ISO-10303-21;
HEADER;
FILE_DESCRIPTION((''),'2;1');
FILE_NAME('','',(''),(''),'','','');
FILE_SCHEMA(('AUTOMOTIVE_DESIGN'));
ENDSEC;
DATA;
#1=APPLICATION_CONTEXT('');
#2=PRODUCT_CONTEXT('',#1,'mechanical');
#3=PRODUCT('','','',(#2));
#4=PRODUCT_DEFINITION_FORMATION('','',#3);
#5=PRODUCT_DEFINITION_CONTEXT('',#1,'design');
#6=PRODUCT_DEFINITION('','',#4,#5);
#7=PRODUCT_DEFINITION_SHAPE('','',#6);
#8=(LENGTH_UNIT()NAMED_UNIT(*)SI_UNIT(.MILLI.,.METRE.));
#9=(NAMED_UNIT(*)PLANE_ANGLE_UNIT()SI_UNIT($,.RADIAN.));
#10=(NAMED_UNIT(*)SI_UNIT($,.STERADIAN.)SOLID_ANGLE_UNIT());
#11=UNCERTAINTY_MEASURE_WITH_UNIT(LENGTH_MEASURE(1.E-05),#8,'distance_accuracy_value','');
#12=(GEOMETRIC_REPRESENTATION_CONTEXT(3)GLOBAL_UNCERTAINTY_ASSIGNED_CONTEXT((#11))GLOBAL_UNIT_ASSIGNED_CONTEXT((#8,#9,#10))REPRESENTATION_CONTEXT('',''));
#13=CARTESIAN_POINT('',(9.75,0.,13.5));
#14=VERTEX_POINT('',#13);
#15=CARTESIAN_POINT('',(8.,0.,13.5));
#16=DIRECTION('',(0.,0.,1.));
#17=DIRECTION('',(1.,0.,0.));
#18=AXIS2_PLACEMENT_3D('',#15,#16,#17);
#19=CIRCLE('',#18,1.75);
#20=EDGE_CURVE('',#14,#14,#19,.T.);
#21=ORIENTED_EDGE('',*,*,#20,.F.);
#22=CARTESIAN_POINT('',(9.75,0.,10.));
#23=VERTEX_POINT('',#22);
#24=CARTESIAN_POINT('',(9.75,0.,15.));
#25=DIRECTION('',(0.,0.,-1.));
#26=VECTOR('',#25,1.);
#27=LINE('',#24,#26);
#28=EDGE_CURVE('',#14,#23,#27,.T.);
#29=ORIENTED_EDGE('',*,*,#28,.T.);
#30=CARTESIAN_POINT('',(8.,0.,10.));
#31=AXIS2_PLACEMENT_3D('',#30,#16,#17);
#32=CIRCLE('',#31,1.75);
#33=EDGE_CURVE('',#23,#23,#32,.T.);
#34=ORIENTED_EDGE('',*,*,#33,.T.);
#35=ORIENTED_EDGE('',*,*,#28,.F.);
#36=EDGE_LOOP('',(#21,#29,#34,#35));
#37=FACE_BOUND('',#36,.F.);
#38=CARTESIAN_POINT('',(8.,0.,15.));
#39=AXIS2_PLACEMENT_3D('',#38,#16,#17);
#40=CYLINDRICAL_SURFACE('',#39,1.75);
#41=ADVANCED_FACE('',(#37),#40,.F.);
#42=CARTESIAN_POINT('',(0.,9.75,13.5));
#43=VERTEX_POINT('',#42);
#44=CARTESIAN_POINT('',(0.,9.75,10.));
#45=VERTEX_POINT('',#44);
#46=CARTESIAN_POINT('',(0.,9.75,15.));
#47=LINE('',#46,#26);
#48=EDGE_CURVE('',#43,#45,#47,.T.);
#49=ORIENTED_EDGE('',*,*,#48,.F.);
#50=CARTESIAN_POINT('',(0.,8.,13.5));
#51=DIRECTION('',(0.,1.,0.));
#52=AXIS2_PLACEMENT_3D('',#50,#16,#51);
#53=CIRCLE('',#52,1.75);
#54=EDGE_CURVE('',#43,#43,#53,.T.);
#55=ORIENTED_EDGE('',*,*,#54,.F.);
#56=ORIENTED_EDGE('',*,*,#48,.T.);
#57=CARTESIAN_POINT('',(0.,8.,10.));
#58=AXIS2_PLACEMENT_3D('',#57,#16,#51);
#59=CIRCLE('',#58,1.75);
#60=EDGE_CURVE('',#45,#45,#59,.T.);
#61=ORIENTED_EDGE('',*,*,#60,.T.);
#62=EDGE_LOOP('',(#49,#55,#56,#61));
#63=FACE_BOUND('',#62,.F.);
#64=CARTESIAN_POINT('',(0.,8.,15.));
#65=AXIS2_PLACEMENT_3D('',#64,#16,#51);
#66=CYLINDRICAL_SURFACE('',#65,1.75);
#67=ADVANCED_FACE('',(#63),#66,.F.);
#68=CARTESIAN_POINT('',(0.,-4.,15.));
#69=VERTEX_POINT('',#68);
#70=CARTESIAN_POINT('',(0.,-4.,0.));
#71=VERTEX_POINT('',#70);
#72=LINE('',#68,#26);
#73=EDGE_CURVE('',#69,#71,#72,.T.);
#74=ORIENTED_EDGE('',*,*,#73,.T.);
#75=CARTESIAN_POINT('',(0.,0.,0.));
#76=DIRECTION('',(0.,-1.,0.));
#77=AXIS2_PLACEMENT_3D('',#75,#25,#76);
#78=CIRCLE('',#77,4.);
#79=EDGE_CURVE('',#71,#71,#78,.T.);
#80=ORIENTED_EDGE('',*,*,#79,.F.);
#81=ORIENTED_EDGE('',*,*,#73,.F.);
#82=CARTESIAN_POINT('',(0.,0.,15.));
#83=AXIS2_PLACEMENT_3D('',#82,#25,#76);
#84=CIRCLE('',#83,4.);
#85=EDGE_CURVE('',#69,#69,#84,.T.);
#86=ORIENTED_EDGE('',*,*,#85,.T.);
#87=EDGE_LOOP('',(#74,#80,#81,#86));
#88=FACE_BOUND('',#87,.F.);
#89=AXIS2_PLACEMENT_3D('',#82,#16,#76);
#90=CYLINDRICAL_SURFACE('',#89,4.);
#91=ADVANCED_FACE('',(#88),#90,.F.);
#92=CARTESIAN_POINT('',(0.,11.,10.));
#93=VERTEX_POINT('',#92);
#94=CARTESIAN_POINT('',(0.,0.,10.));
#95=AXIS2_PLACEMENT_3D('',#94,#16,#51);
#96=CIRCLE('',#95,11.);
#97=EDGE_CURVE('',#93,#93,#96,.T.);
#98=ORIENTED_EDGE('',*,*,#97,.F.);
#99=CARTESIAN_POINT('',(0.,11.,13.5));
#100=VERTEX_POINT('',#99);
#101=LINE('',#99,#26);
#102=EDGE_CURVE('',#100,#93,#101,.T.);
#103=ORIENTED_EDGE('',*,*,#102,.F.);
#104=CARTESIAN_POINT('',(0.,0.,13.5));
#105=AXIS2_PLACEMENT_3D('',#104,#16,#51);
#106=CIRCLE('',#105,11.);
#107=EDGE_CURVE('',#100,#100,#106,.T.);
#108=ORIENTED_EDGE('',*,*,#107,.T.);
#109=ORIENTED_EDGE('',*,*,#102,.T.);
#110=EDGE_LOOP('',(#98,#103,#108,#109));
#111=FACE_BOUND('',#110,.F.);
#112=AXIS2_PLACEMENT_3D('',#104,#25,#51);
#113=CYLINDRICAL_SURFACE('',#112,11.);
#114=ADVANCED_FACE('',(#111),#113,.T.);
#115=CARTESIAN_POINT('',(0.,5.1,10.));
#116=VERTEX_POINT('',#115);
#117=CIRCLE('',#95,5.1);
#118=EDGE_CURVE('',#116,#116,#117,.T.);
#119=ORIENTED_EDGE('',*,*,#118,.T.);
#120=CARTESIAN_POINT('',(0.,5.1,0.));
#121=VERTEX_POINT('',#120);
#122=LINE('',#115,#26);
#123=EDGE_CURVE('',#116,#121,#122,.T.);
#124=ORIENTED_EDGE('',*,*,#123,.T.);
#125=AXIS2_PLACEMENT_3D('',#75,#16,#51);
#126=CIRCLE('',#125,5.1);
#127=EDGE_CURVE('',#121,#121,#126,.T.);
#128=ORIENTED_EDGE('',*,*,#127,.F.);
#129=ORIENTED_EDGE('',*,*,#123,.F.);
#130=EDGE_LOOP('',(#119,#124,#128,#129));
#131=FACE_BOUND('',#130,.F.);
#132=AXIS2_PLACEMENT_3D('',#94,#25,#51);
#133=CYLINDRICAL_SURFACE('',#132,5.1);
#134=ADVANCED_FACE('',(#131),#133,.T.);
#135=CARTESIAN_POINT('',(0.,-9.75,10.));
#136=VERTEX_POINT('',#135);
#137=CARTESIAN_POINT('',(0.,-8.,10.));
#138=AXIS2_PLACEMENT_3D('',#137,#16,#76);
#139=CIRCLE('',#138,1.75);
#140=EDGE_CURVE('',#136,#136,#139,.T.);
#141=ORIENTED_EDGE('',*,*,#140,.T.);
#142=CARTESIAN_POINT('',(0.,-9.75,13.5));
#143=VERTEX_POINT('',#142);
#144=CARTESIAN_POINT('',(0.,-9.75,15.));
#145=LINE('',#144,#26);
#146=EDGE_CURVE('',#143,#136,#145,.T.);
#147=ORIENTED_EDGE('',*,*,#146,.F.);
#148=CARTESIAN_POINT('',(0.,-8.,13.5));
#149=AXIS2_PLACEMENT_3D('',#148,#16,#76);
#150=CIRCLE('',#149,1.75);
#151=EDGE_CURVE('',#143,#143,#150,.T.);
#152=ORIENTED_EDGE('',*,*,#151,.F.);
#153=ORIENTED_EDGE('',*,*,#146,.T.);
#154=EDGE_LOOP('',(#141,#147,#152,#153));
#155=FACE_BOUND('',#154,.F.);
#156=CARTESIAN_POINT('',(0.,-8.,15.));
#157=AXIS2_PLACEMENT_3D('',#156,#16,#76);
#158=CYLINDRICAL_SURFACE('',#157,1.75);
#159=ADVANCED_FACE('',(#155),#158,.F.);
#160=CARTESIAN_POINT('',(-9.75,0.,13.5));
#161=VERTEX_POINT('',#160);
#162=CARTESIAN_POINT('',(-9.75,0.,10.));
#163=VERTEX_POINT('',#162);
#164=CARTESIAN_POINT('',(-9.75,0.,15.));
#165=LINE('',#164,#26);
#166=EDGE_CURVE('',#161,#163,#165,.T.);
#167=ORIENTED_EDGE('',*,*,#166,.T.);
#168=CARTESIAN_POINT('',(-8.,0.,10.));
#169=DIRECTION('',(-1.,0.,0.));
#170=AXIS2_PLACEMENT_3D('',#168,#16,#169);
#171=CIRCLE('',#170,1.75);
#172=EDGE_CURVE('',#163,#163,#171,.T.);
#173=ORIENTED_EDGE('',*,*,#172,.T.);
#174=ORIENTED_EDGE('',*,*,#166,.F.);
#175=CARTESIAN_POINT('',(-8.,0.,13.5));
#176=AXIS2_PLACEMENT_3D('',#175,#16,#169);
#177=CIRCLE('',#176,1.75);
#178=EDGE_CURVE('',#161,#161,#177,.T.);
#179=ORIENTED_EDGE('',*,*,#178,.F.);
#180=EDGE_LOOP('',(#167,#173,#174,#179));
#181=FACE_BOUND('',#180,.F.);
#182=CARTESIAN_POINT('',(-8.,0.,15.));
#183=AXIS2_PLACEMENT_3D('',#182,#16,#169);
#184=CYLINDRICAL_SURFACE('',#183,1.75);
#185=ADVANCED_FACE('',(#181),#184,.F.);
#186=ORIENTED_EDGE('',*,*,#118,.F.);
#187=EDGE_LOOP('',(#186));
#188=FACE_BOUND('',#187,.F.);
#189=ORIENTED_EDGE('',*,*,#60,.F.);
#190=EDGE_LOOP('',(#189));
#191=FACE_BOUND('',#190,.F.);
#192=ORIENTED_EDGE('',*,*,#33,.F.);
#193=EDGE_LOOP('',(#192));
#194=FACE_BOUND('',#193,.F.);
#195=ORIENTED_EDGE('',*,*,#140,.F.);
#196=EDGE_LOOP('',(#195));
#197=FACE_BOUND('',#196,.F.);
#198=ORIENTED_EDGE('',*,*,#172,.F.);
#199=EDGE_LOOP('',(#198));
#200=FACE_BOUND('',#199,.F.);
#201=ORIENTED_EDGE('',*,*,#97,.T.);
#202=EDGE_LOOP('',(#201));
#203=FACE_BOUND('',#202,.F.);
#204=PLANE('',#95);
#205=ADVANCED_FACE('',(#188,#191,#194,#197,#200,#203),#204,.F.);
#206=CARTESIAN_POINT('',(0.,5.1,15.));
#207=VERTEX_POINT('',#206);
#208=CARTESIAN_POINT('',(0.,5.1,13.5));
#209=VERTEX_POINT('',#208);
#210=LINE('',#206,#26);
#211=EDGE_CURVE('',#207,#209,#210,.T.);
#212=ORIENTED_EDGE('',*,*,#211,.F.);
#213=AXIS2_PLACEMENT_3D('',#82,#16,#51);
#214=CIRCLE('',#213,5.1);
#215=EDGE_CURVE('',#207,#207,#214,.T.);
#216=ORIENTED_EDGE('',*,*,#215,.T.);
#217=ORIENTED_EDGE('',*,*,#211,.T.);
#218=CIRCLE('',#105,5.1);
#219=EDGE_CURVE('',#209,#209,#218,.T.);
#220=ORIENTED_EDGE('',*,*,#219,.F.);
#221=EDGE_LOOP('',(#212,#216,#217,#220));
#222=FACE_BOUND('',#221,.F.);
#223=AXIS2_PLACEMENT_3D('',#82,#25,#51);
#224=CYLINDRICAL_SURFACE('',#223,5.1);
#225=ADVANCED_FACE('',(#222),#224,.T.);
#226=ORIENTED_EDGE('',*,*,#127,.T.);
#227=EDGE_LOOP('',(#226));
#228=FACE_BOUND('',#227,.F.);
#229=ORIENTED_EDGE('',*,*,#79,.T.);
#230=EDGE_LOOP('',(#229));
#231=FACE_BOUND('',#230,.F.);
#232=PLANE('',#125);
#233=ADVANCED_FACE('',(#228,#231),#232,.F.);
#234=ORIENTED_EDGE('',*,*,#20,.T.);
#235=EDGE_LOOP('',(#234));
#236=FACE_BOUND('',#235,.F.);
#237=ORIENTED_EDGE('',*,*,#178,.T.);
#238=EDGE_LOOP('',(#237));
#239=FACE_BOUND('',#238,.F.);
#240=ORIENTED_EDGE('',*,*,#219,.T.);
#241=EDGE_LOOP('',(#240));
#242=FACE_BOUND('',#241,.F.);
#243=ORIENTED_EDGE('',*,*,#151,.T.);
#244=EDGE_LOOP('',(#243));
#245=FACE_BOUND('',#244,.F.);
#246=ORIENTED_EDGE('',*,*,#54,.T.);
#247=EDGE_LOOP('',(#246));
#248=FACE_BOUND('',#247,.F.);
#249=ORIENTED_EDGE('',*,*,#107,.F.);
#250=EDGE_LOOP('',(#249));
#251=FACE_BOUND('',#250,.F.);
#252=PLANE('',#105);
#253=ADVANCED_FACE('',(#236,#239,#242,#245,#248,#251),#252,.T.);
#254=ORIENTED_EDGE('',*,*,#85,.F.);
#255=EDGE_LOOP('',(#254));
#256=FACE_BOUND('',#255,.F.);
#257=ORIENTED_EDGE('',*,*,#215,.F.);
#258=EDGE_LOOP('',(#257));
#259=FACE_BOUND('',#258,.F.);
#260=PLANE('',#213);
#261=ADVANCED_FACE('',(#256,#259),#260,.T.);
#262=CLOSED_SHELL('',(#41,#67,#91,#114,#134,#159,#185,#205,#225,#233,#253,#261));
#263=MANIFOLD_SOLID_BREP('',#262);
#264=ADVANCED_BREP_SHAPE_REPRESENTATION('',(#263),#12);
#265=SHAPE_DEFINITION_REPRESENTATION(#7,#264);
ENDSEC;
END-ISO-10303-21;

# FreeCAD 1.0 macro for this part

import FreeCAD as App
import Part
import Sketcher

doc = App.newDocument("Part")
body = doc.addObject("PartDesign::Body", "Body")

# Sketch on YZ plane
sketch1 = body.newObject("Sketcher::SketchObject", "Sketch")
sketch1.AttachmentSupport = (doc.getObject("YZ_Plane"), [""])
sketch1.MapMode = "FlatFace"
sketch1.addGeometry([
    Part.LineSegment(App.Vector(0, 15, 0), App.Vector(0, 0, 0)),  # 0
    Part.LineSegment(App.Vector(0, 0, 0), App.Vector(5.1, 0, 0)),  # 1
    Part.LineSegment(App.Vector(5.1, 0, 0), App.Vector(5.1, 10, 0)),  # 2
    Part.LineSegment(App.Vector(5.1, 10, 0), App.Vector(11, 10, 0)),  # 3
    Part.LineSegment(App.Vector(11, 10, 0), App.Vector(11, 13.5, 0)),  # 4
    Part.LineSegment(App.Vector(11, 13.5, 0), App.Vector(5.1, 13.5, 0)),  # 5
    Part.LineSegment(App.Vector(5.1, 13.5, 0), App.Vector(5.1, 15, 0)),  # 6
    Part.LineSegment(App.Vector(5.1, 15, 0), App.Vector(0, 15, 0)),  # 7
], False)
sketch1.addConstraint([
    Sketcher.Constraint("Coincident", 0, 2, 1, 1),
    Sketcher.Constraint("Coincident", 1, 2, 2, 1),
    Sketcher.Constraint("Coincident", 2, 2, 3, 1),
    Sketcher.Constraint("Coincident", 3, 2, 4, 1),
    Sketcher.Constraint("Coincident", 4, 2, 5, 1),
    Sketcher.Constraint("Coincident", 5, 2, 6, 1),
    Sketcher.Constraint("Coincident", 6, 2, 7, 1),
    Sketcher.Constraint("Coincident", 7, 2, 0, 1),
    Sketcher.Constraint("Vertical", 0),
    Sketcher.Constraint("Horizontal", 1),
    Sketcher.Constraint("Vertical", 2),
    Sketcher.Constraint("Horizontal", 3),
    Sketcher.Constraint("Vertical", 4),
    Sketcher.Constraint("Horizontal", 5),
    Sketcher.Constraint("Vertical", 6),
    Sketcher.Constraint("Horizontal", 7),
    Sketcher.Constraint("Coincident", 0, 2, -1, 1),
    Sketcher.Constraint("Vertical", 2, 2, 5, 2),
    Sketcher.Constraint("DistanceY", 0, 2, 0, 1, 15.0),
    Sketcher.Constraint("DistanceY", 2, 1, 2, 2, 10.0),
    Sketcher.Constraint("DistanceX", 1, 1, 1, 2, 5.1),
    Sketcher.Constraint("DistanceX", 3, 1, 3, 2, 5.9),
    Sketcher.Constraint("DistanceY", 4, 1, 4, 2, 3.5),
])
revolution = body.newObject("PartDesign::Revolution", "Revolution")
revolution.Profile = sketch1
revolution.ReferenceAxis = (sketch1, ["V_Axis"])
revolution.Angle = 360

# Sketch on XY plane
sketch2 = body.newObject("Sketcher::SketchObject", "Sketch001")
sketch2.AttachmentSupport = (doc.getObject("XY_Plane"), [""])
sketch2.MapMode = "FlatFace"
sketch2.AttachmentOffset = App.Placement(App.Vector(0, 0, 15), App.Rotation())
sketch2.addGeometry([
    Part.Circle(App.Vector(0, 0, 0), App.Vector(0, 0, 1), 4),
    Part.Circle(App.Vector(0, -8, 0), App.Vector(0, 0, 1), 1.8),
], False)
sketch2.addConstraint([
    Sketcher.Constraint("Coincident", 0, 3, -1, 1),
    Sketcher.Constraint("PointOnObject", 1, 3, -2),
    Sketcher.Constraint("Diameter", 0, 8.0),
    Sketcher.Constraint("Diameter", 1, 3.5),
    Sketcher.Constraint("DistanceY", 1, 3, -1, 1, 8.0),
])
pocket1 = body.newObject("PartDesign::Pocket", "Pocket")
pocket1.Profile = sketch2
pocket1.Type = "ThroughAll"
doc.recompute()

polarpattern = body.newObject("PartDesign::PolarPattern", "PolarPattern")
polarpattern.Originals = [pocket1]
polarpattern.Axis = (doc.getObject("Z_Axis"), [""])
polarpattern.Angle = 360
polarpattern.Occurrences = 4
body.Tip = polarpattern

doc.recompute()
